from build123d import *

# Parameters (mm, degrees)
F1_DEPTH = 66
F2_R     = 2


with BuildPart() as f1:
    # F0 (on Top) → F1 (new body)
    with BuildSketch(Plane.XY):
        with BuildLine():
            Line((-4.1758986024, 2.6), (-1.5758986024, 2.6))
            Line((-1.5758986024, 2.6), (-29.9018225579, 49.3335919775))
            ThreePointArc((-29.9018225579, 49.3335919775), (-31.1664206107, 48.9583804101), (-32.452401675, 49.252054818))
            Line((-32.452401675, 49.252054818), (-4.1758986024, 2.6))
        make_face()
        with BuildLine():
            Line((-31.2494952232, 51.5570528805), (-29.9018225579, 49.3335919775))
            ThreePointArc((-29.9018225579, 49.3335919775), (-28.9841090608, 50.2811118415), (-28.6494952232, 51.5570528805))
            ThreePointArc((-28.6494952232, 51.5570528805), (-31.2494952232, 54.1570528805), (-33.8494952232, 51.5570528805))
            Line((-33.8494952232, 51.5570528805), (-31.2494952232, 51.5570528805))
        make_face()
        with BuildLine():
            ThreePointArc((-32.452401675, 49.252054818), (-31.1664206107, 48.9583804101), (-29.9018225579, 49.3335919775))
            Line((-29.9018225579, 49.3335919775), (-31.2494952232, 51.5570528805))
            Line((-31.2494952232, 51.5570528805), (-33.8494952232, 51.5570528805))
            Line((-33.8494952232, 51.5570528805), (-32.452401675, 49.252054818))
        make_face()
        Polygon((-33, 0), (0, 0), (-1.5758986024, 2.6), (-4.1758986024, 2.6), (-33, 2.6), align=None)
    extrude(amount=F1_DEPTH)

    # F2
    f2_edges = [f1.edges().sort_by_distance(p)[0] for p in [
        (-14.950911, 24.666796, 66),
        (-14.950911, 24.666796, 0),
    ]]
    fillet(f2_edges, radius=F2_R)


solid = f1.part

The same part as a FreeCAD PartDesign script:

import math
import FreeCAD as App
import Part
import Sketcher

V = App.Vector
Q = App.Units.Quantity


def edges_at(feature, points):
    """Names of the edges that pass closest to the given points."""
    edges = feature.Shape.Edges
    near = lambda p: min(range(len(edges)), key=lambda i: edges[i].distToShape(Part.Vertex(*p))[0])
    return sorted({f"Edge{near(p) + 1}" for p in points})

doc = App.newDocument("Part")
body = doc.addObject("PartDesign::Body", "Body")

# Sketch on XY plane
sketch1 = doc.addObject("Sketcher::SketchObject", "Sketch")
body.addObject(sketch1)
sketch1.AttachmentSupport = (doc.XY_Plane, [""])
sketch1.MapMode = "FlatFace"
sketch1.addGeometry([
    Part.LineSegment(V(-1.6, 2.6, 0), V(-29.9, 49.3, 0)),  # 0
    Part.ArcOfCircle(Part.Circle(V(-31.2, 51.6, 0), V(0, 0, 1), 2.6), math.radians(-59), math.radians(0)),  # 1
    Part.ArcOfCircle(Part.Circle(V(-31.2, 51.6, 0), V(0, 0, 1), 2.6), math.radians(0), math.radians(180)),  # 2
    Part.LineSegment(V(-33.8, 51.6, 0), V(-4.2, 2.6, 0)),  # 3
    Part.LineSegment(V(-4.2, 2.6, 0), V(-33, 2.6, 0)),  # 4
    Part.LineSegment(V(-33, 2.6, 0), V(-33, 0, 0)),  # 5
    Part.LineSegment(V(-33, 0, 0), V(0, 0, 0)),  # 6
    Part.LineSegment(V(0, 0, 0), V(-1.6, 2.6, 0)),  # 7
], False)
sketch1.addConstraint([
    Sketcher.Constraint("Coincident", 0, 2, 1, 1),
    Sketcher.Constraint("Tangent", 1, 2, 2, 1),
    Sketcher.Constraint("Coincident", 2, 2, 3, 1),
    Sketcher.Constraint("Coincident", 3, 2, 4, 1),
    Sketcher.Constraint("Coincident", 4, 2, 5, 1),
    Sketcher.Constraint("Coincident", 5, 2, 6, 1),
    Sketcher.Constraint("Coincident", 6, 2, 7, 1),
    Sketcher.Constraint("Coincident", 7, 2, 0, 1),
    Sketcher.Constraint("Horizontal", 4),
    Sketcher.Constraint("Vertical", 5),
    Sketcher.Constraint("Horizontal", 6),
    Sketcher.Constraint("Coincident", 6, 2, -1, 1),
    Sketcher.Constraint("Equal", 1, 2),
    Sketcher.Constraint("Parallel", 0, 3),
    Sketcher.Constraint("Parallel", 3, 7),
    Sketcher.Constraint("Horizontal", 2, 3, 1, 2),
    Sketcher.Constraint("Horizontal", 1, 2, 2, 2),
    Sketcher.Constraint("Horizontal", 4, 2, 7, 2),
    Sketcher.Constraint("Radius", 1, Q("2.6 mm")),
    Sketcher.Constraint("DistanceX", 6, 1, 6, 2, Q("33 mm")),
    Sketcher.Constraint("DistanceY", 5, 2, 5, 1, Q("2.6 mm")),
    Sketcher.Constraint("DistanceX", 3, 2, 7, 2, Q("2.6 mm")),
    Sketcher.Constraint("DistanceX", 4, 2, 4, 1, Q("28.824101 mm")),
    Sketcher.Constraint("Distance", 0, Q("54.647842 mm")),
])
pad1 = doc.addObject("PartDesign::Pad", "Pad")
body.addObject(pad1)
pad1.Profile = sketch1
pad1.Length = 66
doc.recompute()

fillet = doc.addObject("PartDesign::Fillet", "Fillet")
body.addObject(fillet)
fillet.Base = (pad1, edges_at(pad1, [(-15.739, 25.967, 66), (-15.739, 25.967, 0)]))
fillet.Radius = 2

doc.recompute()
